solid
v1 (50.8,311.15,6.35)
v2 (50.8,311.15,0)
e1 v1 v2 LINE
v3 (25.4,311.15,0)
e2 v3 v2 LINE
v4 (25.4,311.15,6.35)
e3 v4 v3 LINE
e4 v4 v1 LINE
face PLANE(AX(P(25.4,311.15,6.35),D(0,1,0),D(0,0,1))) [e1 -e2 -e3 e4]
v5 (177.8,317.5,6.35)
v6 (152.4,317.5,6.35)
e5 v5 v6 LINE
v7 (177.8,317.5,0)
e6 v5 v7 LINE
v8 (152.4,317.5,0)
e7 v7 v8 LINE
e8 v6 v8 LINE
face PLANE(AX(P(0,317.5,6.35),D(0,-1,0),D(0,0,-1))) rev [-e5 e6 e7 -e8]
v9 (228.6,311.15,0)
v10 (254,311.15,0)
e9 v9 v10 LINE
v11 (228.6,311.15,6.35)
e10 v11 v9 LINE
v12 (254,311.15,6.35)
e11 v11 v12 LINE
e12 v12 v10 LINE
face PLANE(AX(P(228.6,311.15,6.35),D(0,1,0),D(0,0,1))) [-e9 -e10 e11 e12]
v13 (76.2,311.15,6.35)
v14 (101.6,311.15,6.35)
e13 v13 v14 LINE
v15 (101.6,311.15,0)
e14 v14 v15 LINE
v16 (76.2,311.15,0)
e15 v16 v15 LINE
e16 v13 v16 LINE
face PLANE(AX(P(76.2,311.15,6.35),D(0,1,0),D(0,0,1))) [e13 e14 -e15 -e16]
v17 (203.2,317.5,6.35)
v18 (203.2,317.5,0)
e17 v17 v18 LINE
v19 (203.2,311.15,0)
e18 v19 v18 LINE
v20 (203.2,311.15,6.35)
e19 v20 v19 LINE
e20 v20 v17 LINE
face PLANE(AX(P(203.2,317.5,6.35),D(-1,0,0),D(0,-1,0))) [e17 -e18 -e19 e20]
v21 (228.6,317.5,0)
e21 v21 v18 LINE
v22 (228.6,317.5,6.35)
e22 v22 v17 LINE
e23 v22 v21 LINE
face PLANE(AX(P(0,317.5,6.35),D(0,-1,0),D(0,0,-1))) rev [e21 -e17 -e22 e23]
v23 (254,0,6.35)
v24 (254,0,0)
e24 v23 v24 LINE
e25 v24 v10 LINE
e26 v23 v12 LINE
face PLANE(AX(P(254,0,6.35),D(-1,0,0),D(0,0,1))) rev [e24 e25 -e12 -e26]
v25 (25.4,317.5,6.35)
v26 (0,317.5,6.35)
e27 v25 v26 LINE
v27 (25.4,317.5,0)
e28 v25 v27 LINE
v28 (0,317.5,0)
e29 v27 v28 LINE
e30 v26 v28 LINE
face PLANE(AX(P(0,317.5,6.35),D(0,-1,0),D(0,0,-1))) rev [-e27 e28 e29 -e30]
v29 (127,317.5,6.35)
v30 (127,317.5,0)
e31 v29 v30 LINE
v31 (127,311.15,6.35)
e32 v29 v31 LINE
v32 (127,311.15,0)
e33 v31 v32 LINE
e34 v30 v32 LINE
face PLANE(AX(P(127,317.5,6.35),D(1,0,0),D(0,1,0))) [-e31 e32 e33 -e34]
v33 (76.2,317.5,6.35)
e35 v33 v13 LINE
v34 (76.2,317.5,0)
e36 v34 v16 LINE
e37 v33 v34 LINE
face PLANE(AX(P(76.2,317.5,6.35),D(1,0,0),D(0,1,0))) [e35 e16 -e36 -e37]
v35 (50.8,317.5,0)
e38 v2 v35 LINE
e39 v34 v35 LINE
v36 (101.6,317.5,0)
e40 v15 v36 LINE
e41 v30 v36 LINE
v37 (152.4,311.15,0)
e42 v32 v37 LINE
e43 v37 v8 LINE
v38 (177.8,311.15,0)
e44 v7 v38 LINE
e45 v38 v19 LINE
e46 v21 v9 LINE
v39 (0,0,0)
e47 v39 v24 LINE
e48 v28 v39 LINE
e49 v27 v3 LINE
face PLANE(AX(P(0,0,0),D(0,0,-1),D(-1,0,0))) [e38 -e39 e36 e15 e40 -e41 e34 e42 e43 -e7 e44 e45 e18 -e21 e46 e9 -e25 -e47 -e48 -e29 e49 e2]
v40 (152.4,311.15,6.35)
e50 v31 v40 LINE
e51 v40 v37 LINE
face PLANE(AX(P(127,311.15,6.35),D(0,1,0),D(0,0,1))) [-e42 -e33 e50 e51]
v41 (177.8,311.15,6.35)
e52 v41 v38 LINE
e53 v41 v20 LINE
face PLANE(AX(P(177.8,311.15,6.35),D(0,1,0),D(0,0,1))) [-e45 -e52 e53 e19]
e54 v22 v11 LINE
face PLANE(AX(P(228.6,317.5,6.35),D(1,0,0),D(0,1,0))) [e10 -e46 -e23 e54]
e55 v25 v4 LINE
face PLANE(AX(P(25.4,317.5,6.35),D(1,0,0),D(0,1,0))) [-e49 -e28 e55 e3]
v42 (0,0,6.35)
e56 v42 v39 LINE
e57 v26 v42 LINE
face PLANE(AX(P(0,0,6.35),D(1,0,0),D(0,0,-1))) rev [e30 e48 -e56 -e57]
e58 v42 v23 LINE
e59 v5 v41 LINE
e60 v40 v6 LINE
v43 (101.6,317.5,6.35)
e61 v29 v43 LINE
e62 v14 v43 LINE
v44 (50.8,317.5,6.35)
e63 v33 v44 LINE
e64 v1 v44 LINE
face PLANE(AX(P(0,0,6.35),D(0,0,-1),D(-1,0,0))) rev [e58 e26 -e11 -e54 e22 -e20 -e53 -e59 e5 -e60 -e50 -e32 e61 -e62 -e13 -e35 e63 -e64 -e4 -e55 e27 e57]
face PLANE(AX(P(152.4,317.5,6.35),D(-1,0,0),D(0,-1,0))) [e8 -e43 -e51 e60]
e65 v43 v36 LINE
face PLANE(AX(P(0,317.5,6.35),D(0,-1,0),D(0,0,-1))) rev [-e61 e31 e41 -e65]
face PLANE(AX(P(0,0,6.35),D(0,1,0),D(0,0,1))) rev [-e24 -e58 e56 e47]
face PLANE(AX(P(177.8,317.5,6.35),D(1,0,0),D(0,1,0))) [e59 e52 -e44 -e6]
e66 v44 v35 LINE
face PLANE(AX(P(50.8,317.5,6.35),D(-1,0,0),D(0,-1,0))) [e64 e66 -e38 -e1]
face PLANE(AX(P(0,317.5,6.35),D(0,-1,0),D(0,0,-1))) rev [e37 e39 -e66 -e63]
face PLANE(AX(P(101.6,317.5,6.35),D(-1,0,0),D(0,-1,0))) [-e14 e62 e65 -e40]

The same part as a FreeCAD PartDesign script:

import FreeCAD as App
import Part
import Sketcher

V = App.Vector
Q = App.Units.Quantity


def add_polygon(sketch, points):
    """Adds a closed chain of lines whose ends are joined by coincident constraints."""
    first, n = sketch.GeometryCount, len(points)
    for a, b in zip(points, points[1:] + points[:1]):
        sketch.addGeometry(Part.LineSegment(App.Vector(*a, 0), App.Vector(*b, 0)), False)
    for i in range(n):
        sketch.addConstraint(Sketcher.Constraint("Coincident", first + i, 2, first + (i + 1) % n, 1))

doc = App.newDocument("Part")
body = doc.addObject("PartDesign::Body", "Body")

sketch1 = body.newObject("Sketcher::SketchObject", "Sketch")
sketch1.AttachmentSupport = (doc.getObject("XY_Plane"), [""])
sketch1.MapMode = "FlatFace"
add_polygon(sketch1, [(0, 318), (0, 0), (254, 0), (254, 318)])
sketch1.addConstraint(Sketcher.Constraint("Vertical", 0))
sketch1.addConstraint(Sketcher.Constraint("Horizontal", 1))
sketch1.addConstraint(Sketcher.Constraint("Vertical", 2))
sketch1.addConstraint(Sketcher.Constraint("Horizontal", 3))
sketch1.addConstraint(Sketcher.Constraint("Coincident", 0, 2, -1, 1))
sketch1.addConstraint(Sketcher.Constraint("DistanceX", 1, 1, 1, 2, Q("10 in")))
sketch1.addConstraint(Sketcher.Constraint("DistanceY", 0, 2, 0, 1, Q("12.5 in")))
pad1 = body.newObject("PartDesign::Pad", "Pad")
pad1.Profile = sketch1
pad1.Length = Q("0.25 in")

sketch2 = body.newObject("Sketcher::SketchObject", "Sketch001")
sketch2.AttachmentSupport = (doc.getObject("XY_Plane"), [""])
sketch2.MapMode = "FlatFace"
add_polygon(sketch2, [(25, 318), (25, 311), (51, 311), (51, 318)])
sketch2.addConstraint(Sketcher.Constraint("Vertical", 0))
sketch2.addConstraint(Sketcher.Constraint("Horizontal", 1))
sketch2.addConstraint(Sketcher.Constraint("Vertical", 2))
sketch2.addConstraint(Sketcher.Constraint("Horizontal", 3))
sketch2.addConstraint(Sketcher.Constraint("DistanceX", 1, 1, 1, 2, Q("1 in")))
sketch2.addConstraint(Sketcher.Constraint("DistanceX", -1, 1, 0, 2, Q("1 in")))
sketch2.addConstraint(Sketcher.Constraint("DistanceY", 0, 2, 0, 1, Q("0.25 in")))
sketch2.addConstraint(Sketcher.Constraint("DistanceY", -1, 1, 2, 2, Q("12.5 in")))
pocket1 = body.newObject("PartDesign::Pocket", "Pocket")
pocket1.Profile = sketch2
pocket1.Length = Q("0.25 in")
pocket1.Reversed = True
doc.recompute()

linearpattern = body.newObject("PartDesign::LinearPattern", "LinearPattern")
linearpattern.Originals = [pocket1]
linearpattern.Direction = (doc.getObject("X_Axis"), [""])
linearpattern.Mode = "offset"
linearpattern.Offset = Q("2 in")
linearpattern.Occurrences = 5
body.Tip = linearpattern

doc.recompute()
